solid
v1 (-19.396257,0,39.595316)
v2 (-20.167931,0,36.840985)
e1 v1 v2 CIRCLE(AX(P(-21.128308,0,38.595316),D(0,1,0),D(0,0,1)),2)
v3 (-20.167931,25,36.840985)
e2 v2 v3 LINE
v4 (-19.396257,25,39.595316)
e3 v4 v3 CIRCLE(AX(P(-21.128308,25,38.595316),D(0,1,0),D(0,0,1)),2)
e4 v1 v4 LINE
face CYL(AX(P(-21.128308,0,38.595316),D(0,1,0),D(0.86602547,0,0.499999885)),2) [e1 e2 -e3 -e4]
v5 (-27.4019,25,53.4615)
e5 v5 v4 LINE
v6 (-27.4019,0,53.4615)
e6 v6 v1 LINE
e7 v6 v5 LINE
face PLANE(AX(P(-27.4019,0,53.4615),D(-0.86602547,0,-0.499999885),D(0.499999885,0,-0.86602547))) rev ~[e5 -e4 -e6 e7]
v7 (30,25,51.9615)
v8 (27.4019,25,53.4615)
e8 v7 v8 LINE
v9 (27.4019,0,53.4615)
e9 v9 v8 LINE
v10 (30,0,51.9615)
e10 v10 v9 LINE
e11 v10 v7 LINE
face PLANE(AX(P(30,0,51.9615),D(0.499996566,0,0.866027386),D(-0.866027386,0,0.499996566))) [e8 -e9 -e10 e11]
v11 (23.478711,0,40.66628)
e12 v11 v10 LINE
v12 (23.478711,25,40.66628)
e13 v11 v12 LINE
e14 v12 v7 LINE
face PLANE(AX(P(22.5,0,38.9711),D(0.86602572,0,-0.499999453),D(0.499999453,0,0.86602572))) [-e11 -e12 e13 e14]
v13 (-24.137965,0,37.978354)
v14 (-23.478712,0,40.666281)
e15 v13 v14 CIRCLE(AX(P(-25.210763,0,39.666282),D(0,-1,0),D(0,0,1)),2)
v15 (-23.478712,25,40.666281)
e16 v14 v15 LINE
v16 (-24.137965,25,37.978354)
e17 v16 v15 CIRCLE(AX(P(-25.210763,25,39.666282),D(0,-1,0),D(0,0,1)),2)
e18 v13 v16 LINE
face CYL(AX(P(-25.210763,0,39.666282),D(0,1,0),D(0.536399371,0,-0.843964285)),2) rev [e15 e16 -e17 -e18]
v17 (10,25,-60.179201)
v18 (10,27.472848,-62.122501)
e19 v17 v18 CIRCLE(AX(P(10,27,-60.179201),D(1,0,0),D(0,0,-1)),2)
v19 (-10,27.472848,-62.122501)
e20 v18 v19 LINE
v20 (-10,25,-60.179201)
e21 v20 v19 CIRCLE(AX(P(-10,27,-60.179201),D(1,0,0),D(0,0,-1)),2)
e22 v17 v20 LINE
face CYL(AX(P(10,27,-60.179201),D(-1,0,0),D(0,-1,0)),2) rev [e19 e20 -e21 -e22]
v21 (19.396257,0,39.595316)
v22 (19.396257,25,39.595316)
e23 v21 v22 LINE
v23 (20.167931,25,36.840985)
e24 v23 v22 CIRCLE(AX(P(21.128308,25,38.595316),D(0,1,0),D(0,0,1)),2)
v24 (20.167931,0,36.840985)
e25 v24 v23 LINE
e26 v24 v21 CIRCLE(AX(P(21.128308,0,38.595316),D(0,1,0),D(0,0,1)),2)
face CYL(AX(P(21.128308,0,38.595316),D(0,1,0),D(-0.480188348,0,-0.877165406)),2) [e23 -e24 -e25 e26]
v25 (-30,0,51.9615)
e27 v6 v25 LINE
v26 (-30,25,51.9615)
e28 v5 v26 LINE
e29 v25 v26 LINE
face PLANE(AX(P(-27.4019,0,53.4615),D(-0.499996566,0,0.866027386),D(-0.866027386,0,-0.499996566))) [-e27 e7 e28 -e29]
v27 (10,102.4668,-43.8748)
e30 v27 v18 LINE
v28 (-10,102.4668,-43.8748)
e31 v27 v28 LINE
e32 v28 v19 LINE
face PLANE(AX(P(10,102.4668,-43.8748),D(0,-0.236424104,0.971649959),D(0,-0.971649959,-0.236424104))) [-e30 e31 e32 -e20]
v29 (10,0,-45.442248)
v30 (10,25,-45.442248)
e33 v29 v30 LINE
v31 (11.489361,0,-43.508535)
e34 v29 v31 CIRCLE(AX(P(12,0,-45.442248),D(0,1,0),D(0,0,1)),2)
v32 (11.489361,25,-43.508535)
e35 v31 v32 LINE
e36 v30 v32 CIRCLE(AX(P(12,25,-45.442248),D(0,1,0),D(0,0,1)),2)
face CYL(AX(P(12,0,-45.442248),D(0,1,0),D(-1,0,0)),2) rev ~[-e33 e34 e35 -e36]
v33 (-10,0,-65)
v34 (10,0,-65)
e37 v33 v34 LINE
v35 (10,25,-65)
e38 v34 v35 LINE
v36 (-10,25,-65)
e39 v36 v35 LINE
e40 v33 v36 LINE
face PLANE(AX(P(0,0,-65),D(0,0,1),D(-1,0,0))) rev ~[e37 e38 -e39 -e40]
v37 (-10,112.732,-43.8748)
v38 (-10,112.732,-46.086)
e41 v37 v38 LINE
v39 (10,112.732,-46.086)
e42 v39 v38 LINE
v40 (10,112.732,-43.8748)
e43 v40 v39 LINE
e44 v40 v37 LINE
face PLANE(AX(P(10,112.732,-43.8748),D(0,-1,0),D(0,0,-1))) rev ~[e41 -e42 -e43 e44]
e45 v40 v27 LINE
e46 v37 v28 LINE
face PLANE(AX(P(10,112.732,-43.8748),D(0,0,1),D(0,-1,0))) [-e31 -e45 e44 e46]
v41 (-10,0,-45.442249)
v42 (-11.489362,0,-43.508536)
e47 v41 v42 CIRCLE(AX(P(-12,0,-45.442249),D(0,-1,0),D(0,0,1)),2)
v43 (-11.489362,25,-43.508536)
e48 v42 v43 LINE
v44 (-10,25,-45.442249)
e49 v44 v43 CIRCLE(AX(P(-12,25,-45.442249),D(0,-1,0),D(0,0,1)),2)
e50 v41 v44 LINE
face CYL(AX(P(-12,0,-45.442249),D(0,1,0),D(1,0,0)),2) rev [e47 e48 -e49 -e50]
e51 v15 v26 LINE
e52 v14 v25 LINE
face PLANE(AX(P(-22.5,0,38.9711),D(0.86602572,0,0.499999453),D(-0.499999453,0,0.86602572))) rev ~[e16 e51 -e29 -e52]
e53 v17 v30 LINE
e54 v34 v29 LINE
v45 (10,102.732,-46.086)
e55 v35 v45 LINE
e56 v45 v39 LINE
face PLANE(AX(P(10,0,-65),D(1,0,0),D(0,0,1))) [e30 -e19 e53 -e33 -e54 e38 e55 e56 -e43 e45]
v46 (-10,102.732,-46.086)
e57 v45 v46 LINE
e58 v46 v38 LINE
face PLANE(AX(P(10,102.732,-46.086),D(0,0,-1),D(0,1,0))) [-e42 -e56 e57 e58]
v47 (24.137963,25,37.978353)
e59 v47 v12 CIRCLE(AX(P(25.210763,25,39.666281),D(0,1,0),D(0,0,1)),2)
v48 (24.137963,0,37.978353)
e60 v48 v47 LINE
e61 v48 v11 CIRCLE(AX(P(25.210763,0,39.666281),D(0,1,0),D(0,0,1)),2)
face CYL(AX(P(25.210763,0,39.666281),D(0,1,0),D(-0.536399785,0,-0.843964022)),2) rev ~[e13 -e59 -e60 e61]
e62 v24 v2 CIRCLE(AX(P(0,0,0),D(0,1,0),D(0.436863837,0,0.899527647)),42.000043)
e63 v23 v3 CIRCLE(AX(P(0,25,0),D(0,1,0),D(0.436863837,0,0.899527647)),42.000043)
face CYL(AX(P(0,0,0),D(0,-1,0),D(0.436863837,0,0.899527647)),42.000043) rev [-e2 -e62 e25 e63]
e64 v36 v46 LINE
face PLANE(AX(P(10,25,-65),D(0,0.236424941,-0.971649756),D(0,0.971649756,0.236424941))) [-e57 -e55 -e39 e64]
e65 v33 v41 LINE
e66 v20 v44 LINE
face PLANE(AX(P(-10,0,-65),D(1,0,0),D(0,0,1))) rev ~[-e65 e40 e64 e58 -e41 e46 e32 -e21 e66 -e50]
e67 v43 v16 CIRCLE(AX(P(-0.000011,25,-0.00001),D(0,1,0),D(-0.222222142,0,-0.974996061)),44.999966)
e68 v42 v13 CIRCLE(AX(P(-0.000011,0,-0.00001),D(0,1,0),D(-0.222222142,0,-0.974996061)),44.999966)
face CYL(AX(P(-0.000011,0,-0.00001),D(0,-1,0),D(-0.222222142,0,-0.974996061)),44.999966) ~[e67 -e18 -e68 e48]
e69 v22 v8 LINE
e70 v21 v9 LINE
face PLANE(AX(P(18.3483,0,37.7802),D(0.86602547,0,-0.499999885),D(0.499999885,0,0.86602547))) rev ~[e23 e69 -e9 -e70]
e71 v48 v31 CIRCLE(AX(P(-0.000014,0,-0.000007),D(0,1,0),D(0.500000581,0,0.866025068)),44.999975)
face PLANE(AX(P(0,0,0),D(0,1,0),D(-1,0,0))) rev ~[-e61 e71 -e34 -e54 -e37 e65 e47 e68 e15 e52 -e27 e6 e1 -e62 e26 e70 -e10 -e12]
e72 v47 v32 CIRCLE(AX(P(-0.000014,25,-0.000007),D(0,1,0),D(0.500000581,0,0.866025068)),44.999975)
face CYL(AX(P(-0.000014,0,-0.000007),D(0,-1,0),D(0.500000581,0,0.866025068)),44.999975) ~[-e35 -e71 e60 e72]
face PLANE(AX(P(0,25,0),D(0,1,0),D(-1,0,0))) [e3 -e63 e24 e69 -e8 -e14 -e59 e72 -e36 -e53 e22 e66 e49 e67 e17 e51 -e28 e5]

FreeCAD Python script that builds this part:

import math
import FreeCAD as App
import Part
import Sketcher
Q = App.Units.Quantity


def edges_at(feature, points):
    """Names of the edges that pass closest to the given points."""
    edges = feature.Shape.Edges
    near = lambda p: min(range(len(edges)), key=lambda i: edges[i].distToShape(Part.Vertex(*p))[0])
    return sorted({f"Edge{near(p) + 1}" for p in points})


def add_polygon(sketch, points):
    """Adds a closed chain of lines whose ends are joined by coincident constraints."""
    first, n = sketch.GeometryCount, len(points)
    for a, b in zip(points, points[1:] + points[:1]):
        sketch.addGeometry(Part.LineSegment(App.Vector(*a, 0), App.Vector(*b, 0)), False)
    for i in range(n):
        sketch.addConstraint(Sketcher.Constraint("Coincident", first + i, 2, first + (i + 1) % n, 1))

doc = App.newDocument("Part")
body = doc.addObject("PartDesign::Body", "Body")

# Sketch on XZ plane
sketch1 = doc.addObject("Sketcher::SketchObject", "Sketch")
body.addObject(sketch1)
sketch1.AttachmentSupport = (doc.XZ_Plane, [""])
sketch1.MapMode = "FlatFace"
sketch1.addGeometry(Part.ArcOfCircle(Part.Circle(App.Vector(0, 0, 0), App.Vector(0, 0, 1), 44.999963), math.radians(120.000027), math.radians(257.160405)), False)
sketch1.addGeometry(Part.LineSegment(App.Vector(-22.5, 38.9711, 0), App.Vector(-30, 51.9615, 0)), False)
sketch1.addGeometry(Part.LineSegment(App.Vector(-30, 51.9615, 0), App.Vector(-27.4019, 53.4615, 0)), False)
sketch1.addGeometry(Part.LineSegment(App.Vector(-27.4019, 53.4615, 0), App.Vector(-18.3483, 37.7802, 0)), False)
sketch1.addGeometry(Part.ArcOfCircle(Part.Circle(App.Vector(0, 0, 0), App.Vector(0, 0, 1), 42.000043), math.radians(115.903952), math.radians(424.096048)), False)
sketch1.addGeometry(Part.LineSegment(App.Vector(18.3483, 37.7802, 0), App.Vector(27.4019, 53.4615, 0)), False)
sketch1.addGeometry(Part.LineSegment(App.Vector(27.4019, 53.4615, 0), App.Vector(30, 51.9615, 0)), False)
sketch1.addGeometry(Part.LineSegment(App.Vector(30, 51.9615, 0), App.Vector(22.5, 38.9711, 0)), False)
sketch1.addGeometry(Part.ArcOfCircle(Part.Circle(App.Vector(0, 0, 0), App.Vector(0, 0, 1), 44.999979), math.radians(-77.160405), math.radians(59.999973)), False)
sketch1.addGeometry(Part.LineSegment(App.Vector(10, -43.8748, 0), App.Vector(10, -65, 0)), False)
sketch1.addGeometry(Part.LineSegment(App.Vector(10, -65, 0), App.Vector(-10, -65, 0)), False)
sketch1.addGeometry(Part.LineSegment(App.Vector(-10, -65, 0), App.Vector(-10, -43.8748, 0)), False)
sketch1.addConstraint(Sketcher.Constraint("Coincident", 0, 1, 1, 1))
sketch1.addConstraint(Sketcher.Constraint("Coincident", 1, 2, 2, 1))
sketch1.addConstraint(Sketcher.Constraint("Coincident", 2, 2, 3, 1))
sketch1.addConstraint(Sketcher.Constraint("Coincident", 3, 2, 4, 1))
sketch1.addConstraint(Sketcher.Constraint("Coincident", 4, 2, 5, 1))
sketch1.addConstraint(Sketcher.Constraint("Coincident", 5, 2, 6, 1))
sketch1.addConstraint(Sketcher.Constraint("Coincident", 6, 2, 7, 1))
sketch1.addConstraint(Sketcher.Constraint("Coincident", 7, 2, 8, 2))
sketch1.addConstraint(Sketcher.Constraint("Coincident", 8, 1, 9, 1))
sketch1.addConstraint(Sketcher.Constraint("Coincident", 9, 2, 10, 1))
sketch1.addConstraint(Sketcher.Constraint("Coincident", 10, 2, 11, 1))
sketch1.addConstraint(Sketcher.Constraint("Coincident", 11, 2, 0, 2))
sketch1.addConstraint(Sketcher.Constraint("Vertical", 9))
sketch1.addConstraint(Sketcher.Constraint("Horizontal", 10))
sketch1.addConstraint(Sketcher.Constraint("Vertical", 11))
sketch1.addConstraint(Sketcher.Constraint("Coincident", 0, 3, -1, 1))
sketch1.addConstraint(Sketcher.Constraint("Coincident", 4, 3, -1, 1))
sketch1.addConstraint(Sketcher.Constraint("Coincident", 8, 3, -1, 1))
sketch1.addConstraint(Sketcher.Constraint("Equal", 0, 8))
sketch1.addConstraint(Sketcher.Constraint("Symmetric", 2, 2, 5, 2, -2))
sketch1.addConstraint(Sketcher.Constraint("Symmetric", 1, 2, 6, 2, -2))
sketch1.addConstraint(Sketcher.Constraint("Perpendicular", 1, 2))
sketch1.addConstraint(Sketcher.Constraint("Perpendicular", 2, 3))
sketch1.addConstraint(Sketcher.Constraint("Perpendicular", 5, 6))
sketch1.addConstraint(Sketcher.Constraint("Perpendicular", 6, 7))
sketch1.addConstraint(Sketcher.Constraint("Horizontal", 8, 1, 11, 2))
sketch1.addConstraint(Sketcher.Constraint("Angle", 1, Q("120 deg")))
sketch1.addConstraint(Sketcher.Constraint("Radius", 0, Q("45 mm")))
sketch1.addConstraint(Sketcher.Constraint("Radius", 4, Q("42 mm")))
sketch1.addConstraint(Sketcher.Constraint("DistanceX", 10, 2, 10, 1, Q("20 mm")))
sketch1.addConstraint(Sketcher.Constraint("Distance", 1, Q("15 mm")))
sketch1.addConstraint(Sketcher.Constraint("Distance", 2, Q("3 mm")))
sketch1.addConstraint(Sketcher.Constraint("DistanceX", 1, 2, -1, 1, Q("30 mm")))
sketch1.addConstraint(Sketcher.Constraint("DistanceY", 9, 2, -1, 1, Q("65 mm")))
pad1 = doc.addObject("PartDesign::Pad", "Pad")
body.addObject(pad1)
pad1.Profile = sketch1
pad1.Length = 25
pad1.Reversed = True

# Sketch on YZ plane
sketch2 = doc.addObject("Sketcher::SketchObject", "Sketch001")
body.addObject(sketch2)
sketch2.AttachmentSupport = (doc.YZ_Plane, [""])
sketch2.MapMode = "FlatFace"
sketch2.AttachmentOffset = App.Placement(App.Vector(0, 0, 10), App.Rotation())
add_polygon(sketch2, [(102.4668, -43.8748), (25, -62.7242), (25, -65), (102.732, -46.086), (112.732, -46.086), (112.732, -43.8748)])  # lines 0-5
sketch2.addConstraint(Sketcher.Constraint("Vertical", 1))
sketch2.addConstraint(Sketcher.Constraint("Horizontal", 3))
sketch2.addConstraint(Sketcher.Constraint("Vertical", 4))
sketch2.addConstraint(Sketcher.Constraint("Horizontal", 5))
sketch2.addConstraint(Sketcher.Constraint("Parallel", 0, 2))
sketch2.addConstraint(Sketcher.Constraint("DistanceX", 3, 1, 3, 2, Q("10 mm")))
sketch2.addConstraint(Sketcher.Constraint("Distance", 2, Q("80 mm")))
sketch2.addConstraint(Sketcher.Constraint("DistanceX", -1, 1, 0, 2, Q("25 mm")))
sketch2.addConstraint(Sketcher.Constraint("DistanceY", 1, 2, -1, 1, Q("65 mm")))
sketch2.addConstraint(Sketcher.Constraint("Distance", 0, Q("79.727 mm")))
sketch2.addConstraint(Sketcher.Constraint("DistanceY", 1, 2, 1, 1, Q("2.2758 mm")))
sketch2.addConstraint(Sketcher.Constraint("DistanceX", -1, 1, 2, 2, Q("102.732 mm")))
pad2 = doc.addObject("PartDesign::Pad", "Pad001")
body.addObject(pad2)
pad2.Profile = sketch2
pad2.Length = 20
pad2.Reversed = True
doc.recompute()

fillet = doc.addObject("PartDesign::Fillet", "Fillet")
body.addObject(fillet)
fillet.Base = (pad2, edges_at(pad2, [(0, 25, -62.724)]))
fillet.Radius = 2
doc.recompute()

fillet2 = doc.addObject("PartDesign::Fillet", "Fillet001")
body.addObject(fillet2)
fillet2.Base = (fillet, edges_at(fillet, [(10, 12.5, -43.875), (-10, 12.5, -43.875)]))
fillet2.Radius = 2
doc.recompute()

fillet3 = doc.addObject("PartDesign::Fillet", "Fillet002")
body.addObject(fillet3)
fillet3.Base = (fillet2, edges_at(fillet2, [
    (18.348, 12.5, 37.78),
    (-18.348, 12.5, 37.78),
    (22.5, 12.5, 38.971),
    (-22.5, 12.5, 38.971),
]))
fillet3.Radius = 2

doc.recompute()
